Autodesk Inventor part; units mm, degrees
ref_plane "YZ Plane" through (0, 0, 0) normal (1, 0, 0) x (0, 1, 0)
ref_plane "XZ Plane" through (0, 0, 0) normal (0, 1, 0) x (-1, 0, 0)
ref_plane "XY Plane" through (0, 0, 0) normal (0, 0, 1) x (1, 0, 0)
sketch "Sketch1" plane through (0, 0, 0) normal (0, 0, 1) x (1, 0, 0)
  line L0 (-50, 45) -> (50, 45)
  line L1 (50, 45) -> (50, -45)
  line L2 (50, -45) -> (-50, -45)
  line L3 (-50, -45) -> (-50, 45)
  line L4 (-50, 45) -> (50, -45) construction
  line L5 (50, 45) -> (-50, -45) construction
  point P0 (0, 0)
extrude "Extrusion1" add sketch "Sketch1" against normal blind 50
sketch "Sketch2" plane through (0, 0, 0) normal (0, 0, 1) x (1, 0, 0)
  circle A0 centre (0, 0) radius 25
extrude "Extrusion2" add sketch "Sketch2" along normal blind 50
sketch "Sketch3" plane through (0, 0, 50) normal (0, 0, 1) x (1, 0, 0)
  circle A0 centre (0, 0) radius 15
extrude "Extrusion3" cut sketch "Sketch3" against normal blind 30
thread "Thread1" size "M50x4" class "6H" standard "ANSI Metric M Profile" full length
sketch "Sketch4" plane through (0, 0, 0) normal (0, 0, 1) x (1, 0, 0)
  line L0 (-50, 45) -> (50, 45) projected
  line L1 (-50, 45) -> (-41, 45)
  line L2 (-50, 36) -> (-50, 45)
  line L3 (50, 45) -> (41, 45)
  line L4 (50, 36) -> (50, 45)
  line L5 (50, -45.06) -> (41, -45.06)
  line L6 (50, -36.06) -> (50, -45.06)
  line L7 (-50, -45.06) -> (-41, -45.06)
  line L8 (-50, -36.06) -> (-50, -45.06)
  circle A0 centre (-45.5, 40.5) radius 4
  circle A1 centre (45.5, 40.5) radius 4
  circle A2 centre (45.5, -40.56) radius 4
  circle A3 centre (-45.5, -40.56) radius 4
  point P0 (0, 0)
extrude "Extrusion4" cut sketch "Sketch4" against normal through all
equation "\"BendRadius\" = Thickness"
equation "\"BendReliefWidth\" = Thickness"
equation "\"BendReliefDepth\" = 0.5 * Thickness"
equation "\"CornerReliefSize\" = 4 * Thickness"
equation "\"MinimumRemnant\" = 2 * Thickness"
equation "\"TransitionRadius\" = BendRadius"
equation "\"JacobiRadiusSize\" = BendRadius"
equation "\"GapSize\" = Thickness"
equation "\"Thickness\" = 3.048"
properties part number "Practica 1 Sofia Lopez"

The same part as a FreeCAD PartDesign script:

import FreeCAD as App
import Part
import Sketcher

V = App.Vector

doc = App.newDocument("Part")
params = doc.addObject("Spreadsheet::Sheet", "Params")
for row, (alias, value) in enumerate([
    ("sketch1_width", "100 mm"),
    ("sketch1_height", "90 mm"),
    ("pad1_length", "50 mm"),
    ("sketch2_diameter", "50 mm"),
    ("pad2_length", "50 mm"),
    ("sketch3_diameter", "30 mm"),
    ("pocket1_length", "30 mm"),
    ("sketch4_diameter", "8 mm"),
], start=1):
    params.set(f"A{row}", alias)
    params.set(f"B{row}", "=" + value)
    params.setAlias(f"B{row}", alias)

body = doc.addObject("PartDesign::Body", "Body")

sketch1 = body.newObject("Sketcher::SketchObject", "Sketch")
sketch1.AttachmentSupport = (doc.getObject("XY_Plane"), [""])
sketch1.MapMode = "FlatFace"
sketch1.addGeometry([
    Part.LineSegment(V(50, 45, 0), V(-50, 45, 0)),
    Part.LineSegment(V(-50, 45, 0), V(-50, -45, 0)),
    Part.LineSegment(V(-50, -45, 0), V(50, -45, 0)),
    Part.LineSegment(V(50, -45, 0), V(50, 45, 0)),
], False)
sketch1.addConstraint([
    Sketcher.Constraint("Coincident", 0, 2, 1, 1),
    Sketcher.Constraint("Coincident", 1, 2, 2, 1),
    Sketcher.Constraint("Coincident", 2, 2, 3, 1),
    Sketcher.Constraint("Coincident", 3, 2, 0, 1),
    Sketcher.Constraint("Horizontal", 0),
    Sketcher.Constraint("Vertical", 1),
    Sketcher.Constraint("Horizontal", 2),
    Sketcher.Constraint("Vertical", 3),
    Sketcher.Constraint("Symmetric", 0, 2, 2, 2, -1, 1),
    Sketcher.Constraint("DistanceX", 0, 2, 0, 1, 100.0),
    Sketcher.Constraint("DistanceY", 1, 2, 1, 1, 90.0),
])
sketch1.setExpression("Constraints[9]", "Params.sketch1_width")
sketch1.setExpression("Constraints[10]", "Params.sketch1_height")
pad1 = body.newObject("PartDesign::Pad", "Pad")
pad1.Profile = sketch1
pad1.setExpression("Length", "Params.pad1_length")
pad1.Reversed = True

sketch2 = body.newObject("Sketcher::SketchObject", "Sketch001")
sketch2.AttachmentSupport = (doc.getObject("XY_Plane"), [""])
sketch2.MapMode = "FlatFace"
sketch2.addGeometry(Part.Circle(V(0, 0, 0), V(0, 0, 1), 25), False)
sketch2.addConstraint([
    Sketcher.Constraint("Coincident", 0, 3, -1, 1),
    Sketcher.Constraint("Diameter", 0, 50.0),
])
sketch2.setExpression("Constraints[1]", "Params.sketch2_diameter")
pad2 = body.newObject("PartDesign::Pad", "Pad001")
pad2.Profile = sketch2
pad2.setExpression("Length", "Params.pad2_length")

sketch3 = body.newObject("Sketcher::SketchObject", "Sketch002")
sketch3.AttachmentSupport = (doc.getObject("XY_Plane"), [""])
sketch3.MapMode = "FlatFace"
sketch3.AttachmentOffset = App.Placement(V(0, 0, 50), App.Rotation())
sketch3.addGeometry(Part.Circle(V(0, 0, 0), V(0, 0, 1), 15), False)
sketch3.addConstraint([
    Sketcher.Constraint("Coincident", 0, 3, -1, 1),
    Sketcher.Constraint("Diameter", 0, 30.0),
])
sketch3.setExpression("Constraints[1]", "Params.sketch3_diameter")
pocket1 = body.newObject("PartDesign::Pocket", "Pocket")
pocket1.Profile = sketch3
pocket1.setExpression("Length", "Params.pocket1_length")

sketch4 = body.newObject("Sketcher::SketchObject", "Sketch003")
sketch4.AttachmentSupport = (doc.getObject("XY_Plane"), [""])
sketch4.MapMode = "FlatFace"
sketch4.addGeometry([
    Part.Circle(V(-45.5, 40.5, 0), V(0, 0, 1), 4),
    Part.Circle(V(45.5, 40.5, 0), V(0, 0, 1), 4),
    Part.Circle(V(45.5, -40.56, 0), V(0, 0, 1), 4),
    Part.Circle(V(-45.5, -40.56, 0), V(0, 0, 1), 4),
], False)
sketch4.addConstraint([
    Sketcher.Constraint("Equal", 0, 1),
    Sketcher.Constraint("Equal", 1, 2),
    Sketcher.Constraint("Equal", 2, 3),
    Sketcher.Constraint("Symmetric", 0, 3, 1, 3, -2),
    Sketcher.Constraint("Symmetric", 2, 3, 3, 3, -2),
    Sketcher.Constraint("Vertical", 1, 3, 2, 3),
    Sketcher.Constraint("Diameter", 0, 8.0),
    Sketcher.Constraint("DistanceX", 0, 3, 1, 3, 91.0),
    Sketcher.Constraint("DistanceY", -1, 1, 0, 3, 40.5),
    Sketcher.Constraint("DistanceY", 2, 3, -1, 1, 40.56),
])
sketch4.setExpression("Constraints[6]", "Params.sketch4_diameter")
pocket2 = body.newObject("PartDesign::Pocket", "Pocket001")
pocket2.Profile = sketch4
pocket2.Type = "ThroughAll"

doc.recompute()
